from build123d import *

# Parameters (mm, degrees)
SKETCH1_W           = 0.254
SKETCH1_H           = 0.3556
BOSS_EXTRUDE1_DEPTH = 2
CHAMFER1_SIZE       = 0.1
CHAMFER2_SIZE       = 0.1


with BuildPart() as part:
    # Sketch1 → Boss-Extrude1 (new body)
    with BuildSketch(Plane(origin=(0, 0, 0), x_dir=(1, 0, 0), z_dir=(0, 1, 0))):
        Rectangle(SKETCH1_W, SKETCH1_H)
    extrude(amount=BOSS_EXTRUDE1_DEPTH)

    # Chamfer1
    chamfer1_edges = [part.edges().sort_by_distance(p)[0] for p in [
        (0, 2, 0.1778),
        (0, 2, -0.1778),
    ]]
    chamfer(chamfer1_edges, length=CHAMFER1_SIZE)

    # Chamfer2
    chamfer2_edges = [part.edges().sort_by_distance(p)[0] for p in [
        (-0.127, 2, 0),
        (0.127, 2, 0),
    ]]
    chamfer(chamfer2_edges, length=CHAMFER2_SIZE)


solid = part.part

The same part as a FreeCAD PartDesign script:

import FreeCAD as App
import Part
import Sketcher
from FreeCAD import Vector
Q = App.Units.Quantity


def edges_at(feature, points):
    """Names of the edges that pass closest to the given points."""
    edges = feature.Shape.Edges
    near = lambda p: min(range(len(edges)), key=lambda i: edges[i].distToShape(Part.Vertex(*p))[0])
    return sorted({f"Edge{near(p) + 1}" for p in points})

doc = App.newDocument("Part")
body = doc.addObject("PartDesign::Body", "Body")

sketch1 = body.newObject("Sketcher::SketchObject", "Sketch")
sketch1.AttachmentSupport = (doc.getObject("XZ_Plane"), [""])
sketch1.MapMode = "FlatFace"
sketch1.addGeometry([
    Part.LineSegment(Vector(-0.13, -0.18, 0), Vector(-0.13, 0.18, 0)),
    Part.LineSegment(Vector(-0.13, 0.18, 0), Vector(0.13, 0.18, 0)),
    Part.LineSegment(Vector(0.13, 0.18, 0), Vector(0.13, -0.18, 0)),
    Part.LineSegment(Vector(0.13, -0.18, 0), Vector(-0.13, -0.18, 0)),
], False)
sketch1.addConstraint([
    Sketcher.Constraint("Coincident", 0, 2, 1, 1),
    Sketcher.Constraint("Coincident", 1, 2, 2, 1),
    Sketcher.Constraint("Coincident", 2, 2, 3, 1),
    Sketcher.Constraint("Coincident", 3, 2, 0, 1),
    Sketcher.Constraint("Vertical", 0),
    Sketcher.Constraint("Horizontal", 1),
    Sketcher.Constraint("Vertical", 2),
    Sketcher.Constraint("Horizontal", 3),
    Sketcher.Constraint("Symmetric", 0, 2, 2, 2, -1, 1),
    Sketcher.Constraint("DistanceX", 1, 1, 1, 2, Q("0.254 mm")),
    Sketcher.Constraint("DistanceY", 0, 1, 0, 2, Q("0.3556 mm")),
])
pad1 = body.newObject("PartDesign::Pad", "Pad")
pad1.Profile = sketch1
pad1.Length = 2
pad1.Reversed = True
doc.recompute()

chamfer = body.newObject("PartDesign::Chamfer", "Chamfer")
chamfer.Base = (pad1, edges_at(pad1, [(0, 2, 0.178), (0, 2, -0.178)]))
chamfer.Size = 0.1
doc.recompute()

chamfer2 = body.newObject("PartDesign::Chamfer", "Chamfer001")
chamfer2.Base = (chamfer, edges_at(chamfer, [(-0.127, 2, 0), (0.127, 2, 0)]))
chamfer2.Size = 0.1

doc.recompute()
